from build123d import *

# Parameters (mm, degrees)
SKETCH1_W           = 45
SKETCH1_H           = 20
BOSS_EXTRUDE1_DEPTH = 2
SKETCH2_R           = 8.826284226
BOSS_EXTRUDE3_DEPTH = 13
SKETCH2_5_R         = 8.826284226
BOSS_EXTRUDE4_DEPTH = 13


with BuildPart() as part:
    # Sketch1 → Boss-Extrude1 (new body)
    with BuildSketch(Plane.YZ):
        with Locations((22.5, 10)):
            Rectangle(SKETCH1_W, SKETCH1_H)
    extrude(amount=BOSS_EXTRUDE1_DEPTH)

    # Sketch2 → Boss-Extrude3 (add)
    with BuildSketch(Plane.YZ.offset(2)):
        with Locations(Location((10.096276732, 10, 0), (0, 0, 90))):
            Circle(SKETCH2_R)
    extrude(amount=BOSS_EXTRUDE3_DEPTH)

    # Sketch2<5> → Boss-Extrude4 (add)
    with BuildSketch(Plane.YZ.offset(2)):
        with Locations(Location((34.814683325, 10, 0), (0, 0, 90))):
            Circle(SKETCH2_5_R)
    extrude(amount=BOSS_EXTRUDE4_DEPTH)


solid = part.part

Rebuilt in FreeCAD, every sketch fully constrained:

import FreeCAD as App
import Part
import Sketcher

V = App.Vector
Q = App.Units.Quantity

doc = App.newDocument("Part")
body = doc.addObject("PartDesign::Body", "Body")

# Sketch on YZ plane
sketch1 = body.newObject("Sketcher::SketchObject", "Sketch")
sketch1.AttachmentSupport = (doc.getObject("YZ_Plane"), [""])
sketch1.MapMode = "FlatFace"
sketch1.addGeometry([
    Part.LineSegment(V(0, 20, 0), V(0, 0, 0)),
    Part.LineSegment(V(0, 0, 0), V(45, 0, 0)),
    Part.LineSegment(V(45, 0, 0), V(45, 20, 0)),
    Part.LineSegment(V(45, 20, 0), V(0, 20, 0)),
], False)
sketch1.addConstraint([
    Sketcher.Constraint("Coincident", 0, 2, 1, 1),
    Sketcher.Constraint("Coincident", 1, 2, 2, 1),
    Sketcher.Constraint("Coincident", 2, 2, 3, 1),
    Sketcher.Constraint("Coincident", 3, 2, 0, 1),
    Sketcher.Constraint("Vertical", 0),
    Sketcher.Constraint("Horizontal", 1),
    Sketcher.Constraint("Vertical", 2),
    Sketcher.Constraint("Horizontal", 3),
    Sketcher.Constraint("Coincident", 0, 2, -1, 1),
    Sketcher.Constraint("DistanceX", 1, 1, 1, 2, Q("45 mm")),
    Sketcher.Constraint("DistanceY", 0, 2, 0, 1, Q("20 mm")),
])
pad1 = body.newObject("PartDesign::Pad", "Pad")
pad1.Profile = sketch1
pad1.Length = 2

# Sketch on YZ plane
sketch2 = body.newObject("Sketcher::SketchObject", "Sketch001")
sketch2.AttachmentSupport = (doc.getObject("YZ_Plane"), [""])
sketch2.MapMode = "FlatFace"
sketch2.AttachmentOffset = App.Placement(V(0, 0, 2), App.Rotation())
sketch2.addGeometry(Part.Circle(V(10, 10, 0), V(0, 0, 1), 9), False)
sketch2.addConstraint([
    Sketcher.Constraint("DistanceY", -1, 1, 0, 3, Q("10 mm")),
    Sketcher.Constraint("Diameter", 0, Q("17.652568 mm")),
    Sketcher.Constraint("DistanceX", -1, 1, 0, 3, Q("10.096277 mm")),
])
pad2 = body.newObject("PartDesign::Pad", "Pad001")
pad2.Profile = sketch2
pad2.Length = 13

# Sketch on YZ plane
sketch3 = body.newObject("Sketcher::SketchObject", "Sketch002")
sketch3.AttachmentSupport = (doc.getObject("YZ_Plane"), [""])
sketch3.MapMode = "FlatFace"
sketch3.AttachmentOffset = App.Placement(V(0, 0, 2), App.Rotation())
sketch3.addGeometry(Part.Circle(V(35, 10, 0), V(0, 0, 1), 9), False)
sketch3.addConstraint([
    Sketcher.Constraint("DistanceY", -1, 1, 0, 3, Q("10 mm")),
    Sketcher.Constraint("Diameter", 0, Q("17.652568 mm")),
    Sketcher.Constraint("DistanceX", -1, 1, 0, 3, Q("34.814683 mm")),
])
pad3 = body.newObject("PartDesign::Pad", "Pad002")
pad3.Profile = sketch3
pad3.Length = 13

doc.recompute()
